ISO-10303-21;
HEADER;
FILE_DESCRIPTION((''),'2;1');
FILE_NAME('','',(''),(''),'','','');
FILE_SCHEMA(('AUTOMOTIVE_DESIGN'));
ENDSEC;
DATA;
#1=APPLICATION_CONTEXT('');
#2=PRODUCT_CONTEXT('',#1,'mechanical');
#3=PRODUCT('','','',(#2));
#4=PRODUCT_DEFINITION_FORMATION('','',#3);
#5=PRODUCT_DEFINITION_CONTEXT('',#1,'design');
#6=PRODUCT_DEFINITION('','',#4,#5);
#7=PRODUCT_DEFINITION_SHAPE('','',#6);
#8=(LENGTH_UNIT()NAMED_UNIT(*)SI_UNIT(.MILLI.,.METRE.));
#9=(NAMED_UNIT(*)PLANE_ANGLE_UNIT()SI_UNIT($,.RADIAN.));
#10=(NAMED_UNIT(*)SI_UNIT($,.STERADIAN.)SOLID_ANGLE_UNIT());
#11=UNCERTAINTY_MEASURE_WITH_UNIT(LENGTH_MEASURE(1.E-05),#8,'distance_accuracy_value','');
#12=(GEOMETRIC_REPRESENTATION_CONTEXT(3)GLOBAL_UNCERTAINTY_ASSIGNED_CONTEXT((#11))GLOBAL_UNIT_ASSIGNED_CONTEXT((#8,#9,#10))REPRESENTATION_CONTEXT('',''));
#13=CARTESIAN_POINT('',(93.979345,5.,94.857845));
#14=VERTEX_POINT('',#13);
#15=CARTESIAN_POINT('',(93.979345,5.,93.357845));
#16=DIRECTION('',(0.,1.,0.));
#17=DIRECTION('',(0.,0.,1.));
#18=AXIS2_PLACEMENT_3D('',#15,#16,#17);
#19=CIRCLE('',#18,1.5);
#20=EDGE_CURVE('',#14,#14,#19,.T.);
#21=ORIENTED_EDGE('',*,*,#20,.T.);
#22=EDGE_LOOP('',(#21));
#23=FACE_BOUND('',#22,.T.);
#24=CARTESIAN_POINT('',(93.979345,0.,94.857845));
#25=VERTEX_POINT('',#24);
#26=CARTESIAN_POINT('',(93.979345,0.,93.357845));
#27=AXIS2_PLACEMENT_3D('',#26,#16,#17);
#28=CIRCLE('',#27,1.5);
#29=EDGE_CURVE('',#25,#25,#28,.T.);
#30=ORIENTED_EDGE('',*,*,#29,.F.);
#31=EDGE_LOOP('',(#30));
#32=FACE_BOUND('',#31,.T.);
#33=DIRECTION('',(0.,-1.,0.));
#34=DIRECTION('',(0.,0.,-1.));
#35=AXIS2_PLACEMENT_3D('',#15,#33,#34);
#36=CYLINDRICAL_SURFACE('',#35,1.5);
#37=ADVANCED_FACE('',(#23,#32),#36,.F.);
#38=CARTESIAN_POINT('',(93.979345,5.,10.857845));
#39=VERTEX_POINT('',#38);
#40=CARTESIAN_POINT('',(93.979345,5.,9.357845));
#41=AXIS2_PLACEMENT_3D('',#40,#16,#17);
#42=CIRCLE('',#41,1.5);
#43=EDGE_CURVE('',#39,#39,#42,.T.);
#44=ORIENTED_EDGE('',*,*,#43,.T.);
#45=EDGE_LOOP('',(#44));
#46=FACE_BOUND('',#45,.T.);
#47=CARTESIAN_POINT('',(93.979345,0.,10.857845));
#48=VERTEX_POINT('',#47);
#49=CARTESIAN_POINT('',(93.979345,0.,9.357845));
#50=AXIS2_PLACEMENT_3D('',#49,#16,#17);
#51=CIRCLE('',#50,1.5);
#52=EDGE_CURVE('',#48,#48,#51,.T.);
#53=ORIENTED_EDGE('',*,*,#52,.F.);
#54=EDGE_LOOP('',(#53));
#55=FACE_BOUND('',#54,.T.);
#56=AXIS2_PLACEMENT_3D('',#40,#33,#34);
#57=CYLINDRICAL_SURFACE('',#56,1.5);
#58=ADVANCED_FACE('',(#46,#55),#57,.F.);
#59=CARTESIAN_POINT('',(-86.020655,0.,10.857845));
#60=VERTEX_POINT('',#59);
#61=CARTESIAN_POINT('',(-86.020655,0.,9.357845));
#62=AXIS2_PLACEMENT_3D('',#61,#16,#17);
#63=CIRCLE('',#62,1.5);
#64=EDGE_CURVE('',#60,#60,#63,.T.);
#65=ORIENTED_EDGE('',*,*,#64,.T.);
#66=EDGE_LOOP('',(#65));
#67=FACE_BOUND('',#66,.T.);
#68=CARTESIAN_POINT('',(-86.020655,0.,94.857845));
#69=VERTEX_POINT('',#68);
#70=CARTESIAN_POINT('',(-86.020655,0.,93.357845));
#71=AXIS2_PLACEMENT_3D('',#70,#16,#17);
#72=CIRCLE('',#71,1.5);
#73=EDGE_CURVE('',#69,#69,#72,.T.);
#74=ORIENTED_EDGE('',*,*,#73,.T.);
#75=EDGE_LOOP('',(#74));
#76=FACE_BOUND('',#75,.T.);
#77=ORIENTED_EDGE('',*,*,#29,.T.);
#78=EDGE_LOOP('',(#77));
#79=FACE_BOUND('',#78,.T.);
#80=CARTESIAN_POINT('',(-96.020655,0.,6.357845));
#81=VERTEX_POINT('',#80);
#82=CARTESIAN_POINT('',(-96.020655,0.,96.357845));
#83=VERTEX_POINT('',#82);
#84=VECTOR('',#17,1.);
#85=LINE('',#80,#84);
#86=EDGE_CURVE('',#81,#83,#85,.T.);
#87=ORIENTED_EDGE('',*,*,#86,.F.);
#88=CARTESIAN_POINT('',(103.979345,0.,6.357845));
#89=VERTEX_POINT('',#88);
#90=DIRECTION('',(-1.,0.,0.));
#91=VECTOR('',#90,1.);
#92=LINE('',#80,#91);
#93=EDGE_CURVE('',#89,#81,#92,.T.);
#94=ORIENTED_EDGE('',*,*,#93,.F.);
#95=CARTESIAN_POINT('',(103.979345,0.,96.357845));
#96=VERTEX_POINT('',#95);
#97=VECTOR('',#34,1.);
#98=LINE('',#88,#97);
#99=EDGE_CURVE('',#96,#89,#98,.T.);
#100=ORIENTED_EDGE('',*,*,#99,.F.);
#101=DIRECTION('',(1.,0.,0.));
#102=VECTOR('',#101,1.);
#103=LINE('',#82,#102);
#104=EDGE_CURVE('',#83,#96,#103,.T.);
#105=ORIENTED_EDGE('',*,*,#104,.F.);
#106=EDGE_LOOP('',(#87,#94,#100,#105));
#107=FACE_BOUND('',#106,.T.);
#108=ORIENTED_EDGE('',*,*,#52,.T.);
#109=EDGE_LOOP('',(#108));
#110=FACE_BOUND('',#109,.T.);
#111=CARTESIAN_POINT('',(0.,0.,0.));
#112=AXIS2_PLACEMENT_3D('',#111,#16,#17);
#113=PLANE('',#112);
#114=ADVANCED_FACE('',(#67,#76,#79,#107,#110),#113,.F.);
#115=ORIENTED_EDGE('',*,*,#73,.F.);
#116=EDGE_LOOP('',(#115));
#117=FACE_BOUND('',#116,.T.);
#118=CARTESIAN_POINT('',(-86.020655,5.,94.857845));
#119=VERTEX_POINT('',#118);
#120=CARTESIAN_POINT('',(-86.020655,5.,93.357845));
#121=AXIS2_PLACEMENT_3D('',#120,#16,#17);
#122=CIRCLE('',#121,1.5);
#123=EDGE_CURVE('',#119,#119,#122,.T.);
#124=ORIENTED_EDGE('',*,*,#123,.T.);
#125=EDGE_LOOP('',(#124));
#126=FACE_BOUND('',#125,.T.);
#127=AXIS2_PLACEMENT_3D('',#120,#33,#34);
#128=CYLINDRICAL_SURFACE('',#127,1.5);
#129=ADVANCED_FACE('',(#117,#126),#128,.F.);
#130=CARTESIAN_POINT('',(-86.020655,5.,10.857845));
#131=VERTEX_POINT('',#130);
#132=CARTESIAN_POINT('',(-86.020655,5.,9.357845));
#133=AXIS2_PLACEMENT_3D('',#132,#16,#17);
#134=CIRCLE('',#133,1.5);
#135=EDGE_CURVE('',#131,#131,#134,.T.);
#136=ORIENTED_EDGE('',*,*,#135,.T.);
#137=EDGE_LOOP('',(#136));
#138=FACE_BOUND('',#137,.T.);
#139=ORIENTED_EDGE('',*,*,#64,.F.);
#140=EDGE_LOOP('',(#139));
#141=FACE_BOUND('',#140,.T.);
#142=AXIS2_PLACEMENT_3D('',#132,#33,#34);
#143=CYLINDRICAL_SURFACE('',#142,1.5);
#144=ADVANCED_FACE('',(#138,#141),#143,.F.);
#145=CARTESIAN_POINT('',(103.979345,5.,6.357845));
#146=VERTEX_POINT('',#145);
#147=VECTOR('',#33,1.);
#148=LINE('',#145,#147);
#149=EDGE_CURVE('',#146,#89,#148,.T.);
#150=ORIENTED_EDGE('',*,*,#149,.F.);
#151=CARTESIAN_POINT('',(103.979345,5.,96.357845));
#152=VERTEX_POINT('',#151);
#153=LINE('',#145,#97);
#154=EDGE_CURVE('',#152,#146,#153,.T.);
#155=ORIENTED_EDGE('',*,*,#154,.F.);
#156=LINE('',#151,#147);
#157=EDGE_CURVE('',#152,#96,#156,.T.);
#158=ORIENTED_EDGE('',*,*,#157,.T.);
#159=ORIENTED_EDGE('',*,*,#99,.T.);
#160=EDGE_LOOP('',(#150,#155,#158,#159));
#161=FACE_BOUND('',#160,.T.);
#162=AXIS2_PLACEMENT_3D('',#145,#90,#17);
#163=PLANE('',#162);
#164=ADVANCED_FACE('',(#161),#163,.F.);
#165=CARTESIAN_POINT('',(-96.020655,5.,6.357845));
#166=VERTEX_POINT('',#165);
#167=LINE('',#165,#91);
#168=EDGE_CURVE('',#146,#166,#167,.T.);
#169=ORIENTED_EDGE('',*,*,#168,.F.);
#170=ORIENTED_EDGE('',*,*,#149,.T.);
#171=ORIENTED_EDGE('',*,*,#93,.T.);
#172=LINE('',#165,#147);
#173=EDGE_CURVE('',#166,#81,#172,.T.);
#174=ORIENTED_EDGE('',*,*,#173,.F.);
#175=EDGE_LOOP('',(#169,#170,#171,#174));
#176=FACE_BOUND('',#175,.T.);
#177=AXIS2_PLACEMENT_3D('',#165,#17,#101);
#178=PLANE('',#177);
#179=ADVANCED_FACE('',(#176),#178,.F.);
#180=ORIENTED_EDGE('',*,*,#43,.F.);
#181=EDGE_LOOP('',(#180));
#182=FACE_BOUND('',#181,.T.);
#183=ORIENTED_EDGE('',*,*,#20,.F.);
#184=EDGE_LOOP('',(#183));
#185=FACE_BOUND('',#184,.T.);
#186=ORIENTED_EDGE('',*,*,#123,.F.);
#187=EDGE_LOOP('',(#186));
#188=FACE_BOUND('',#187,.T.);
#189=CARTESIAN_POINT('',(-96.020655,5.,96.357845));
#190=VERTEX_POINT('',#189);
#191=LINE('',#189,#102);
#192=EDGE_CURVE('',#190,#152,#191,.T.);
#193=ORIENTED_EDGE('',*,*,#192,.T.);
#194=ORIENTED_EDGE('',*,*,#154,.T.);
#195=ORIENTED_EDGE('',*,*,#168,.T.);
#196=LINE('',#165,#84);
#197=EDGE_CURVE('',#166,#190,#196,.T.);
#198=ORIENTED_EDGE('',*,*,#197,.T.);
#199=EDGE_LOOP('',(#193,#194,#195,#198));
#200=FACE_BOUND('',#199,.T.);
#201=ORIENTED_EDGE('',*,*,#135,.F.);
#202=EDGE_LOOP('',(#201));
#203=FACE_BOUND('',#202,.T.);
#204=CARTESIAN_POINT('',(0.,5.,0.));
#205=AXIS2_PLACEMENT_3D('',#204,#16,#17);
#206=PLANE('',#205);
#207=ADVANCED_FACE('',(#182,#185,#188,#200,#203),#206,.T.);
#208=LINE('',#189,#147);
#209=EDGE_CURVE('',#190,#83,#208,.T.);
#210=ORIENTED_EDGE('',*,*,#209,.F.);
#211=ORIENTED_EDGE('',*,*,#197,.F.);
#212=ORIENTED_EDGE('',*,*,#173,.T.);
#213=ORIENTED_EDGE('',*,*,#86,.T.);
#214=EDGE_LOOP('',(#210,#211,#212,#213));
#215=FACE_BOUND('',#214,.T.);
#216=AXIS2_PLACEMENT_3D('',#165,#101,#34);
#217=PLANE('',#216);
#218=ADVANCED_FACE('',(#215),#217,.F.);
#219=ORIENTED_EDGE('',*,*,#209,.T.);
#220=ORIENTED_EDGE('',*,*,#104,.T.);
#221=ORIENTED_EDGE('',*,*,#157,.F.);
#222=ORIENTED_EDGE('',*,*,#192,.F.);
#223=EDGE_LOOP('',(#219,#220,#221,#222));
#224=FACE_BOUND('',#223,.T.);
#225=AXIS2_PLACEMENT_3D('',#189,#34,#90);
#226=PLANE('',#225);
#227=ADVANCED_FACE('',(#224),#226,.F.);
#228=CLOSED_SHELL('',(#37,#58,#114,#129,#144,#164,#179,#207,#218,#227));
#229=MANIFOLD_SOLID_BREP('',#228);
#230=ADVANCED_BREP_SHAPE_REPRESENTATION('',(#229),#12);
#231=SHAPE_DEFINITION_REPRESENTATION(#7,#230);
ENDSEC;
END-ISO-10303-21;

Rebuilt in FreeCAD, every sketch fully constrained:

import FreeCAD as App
import Part
import Sketcher

doc = App.newDocument("Part")
body = doc.addObject("PartDesign::Body", "Body")

sketch1 = body.newObject("Sketcher::SketchObject", "Sketch")
sketch1.AttachmentSupport = (doc.getObject("XZ_Plane"), [""])
sketch1.MapMode = "FlatFace"
sketch1.addGeometry([
    Part.LineSegment(App.Vector(-96, 6.4, 0), App.Vector(-96, 96.4, 0)),
    Part.LineSegment(App.Vector(-96, 96.4, 0), App.Vector(104, 96.4, 0)),
    Part.LineSegment(App.Vector(104, 96.4, 0), App.Vector(104, 6.4, 0)),
    Part.LineSegment(App.Vector(104, 6.4, 0), App.Vector(-96, 6.4, 0)),
    Part.Circle(App.Vector(-86, 93.4, 0), App.Vector(0, 0, 1), 1.5),
    Part.Circle(App.Vector(94, 93.4, 0), App.Vector(0, 0, 1), 1.5),
    Part.Circle(App.Vector(-86, 9.4, 0), App.Vector(0, 0, 1), 1.5),
    Part.Circle(App.Vector(94, 9.4, 0), App.Vector(0, 0, 1), 1.5),
], False)
sketch1.addConstraint([
    Sketcher.Constraint("Coincident", 0, 2, 1, 1),
    Sketcher.Constraint("Coincident", 1, 2, 2, 1),
    Sketcher.Constraint("Coincident", 2, 2, 3, 1),
    Sketcher.Constraint("Coincident", 3, 2, 0, 1),
    Sketcher.Constraint("Vertical", 0),
    Sketcher.Constraint("Horizontal", 1),
    Sketcher.Constraint("Vertical", 2),
    Sketcher.Constraint("Horizontal", 3),
    Sketcher.Constraint("Equal", 4, 5),
    Sketcher.Constraint("Equal", 5, 6),
    Sketcher.Constraint("Equal", 6, 7),
    Sketcher.Constraint("Horizontal", 4, 3, 5, 3),
    Sketcher.Constraint("Horizontal", 6, 3, 7, 3),
    Sketcher.Constraint("Vertical", 4, 3, 6, 3),
    Sketcher.Constraint("Vertical", 5, 3, 7, 3),
    Sketcher.Constraint("Diameter", 4, 3.0),
    Sketcher.Constraint("DistanceX", 1, 1, 1, 2, 200.0),
    Sketcher.Constraint("DistanceY", 0, 1, 0, 2, 90.0),
    Sketcher.Constraint("DistanceX", 4, 3, 5, 3, 180.0),
    Sketcher.Constraint("DistanceY", 6, 3, 4, 3, 84.0),
    Sketcher.Constraint("DistanceX", 0, 2, 4, 3, 10.0),
    Sketcher.Constraint("DistanceY", 4, 3, 0, 2, 3.0),
    Sketcher.Constraint("DistanceX", 4, 3, -1, 1, 86.020655),
    Sketcher.Constraint("DistanceY", -1, 1, 4, 3, 93.357845),
])
pad1 = body.newObject("PartDesign::Pad", "Pad")
pad1.Profile = sketch1
pad1.Length = 5
pad1.Reversed = True

doc.recompute()
